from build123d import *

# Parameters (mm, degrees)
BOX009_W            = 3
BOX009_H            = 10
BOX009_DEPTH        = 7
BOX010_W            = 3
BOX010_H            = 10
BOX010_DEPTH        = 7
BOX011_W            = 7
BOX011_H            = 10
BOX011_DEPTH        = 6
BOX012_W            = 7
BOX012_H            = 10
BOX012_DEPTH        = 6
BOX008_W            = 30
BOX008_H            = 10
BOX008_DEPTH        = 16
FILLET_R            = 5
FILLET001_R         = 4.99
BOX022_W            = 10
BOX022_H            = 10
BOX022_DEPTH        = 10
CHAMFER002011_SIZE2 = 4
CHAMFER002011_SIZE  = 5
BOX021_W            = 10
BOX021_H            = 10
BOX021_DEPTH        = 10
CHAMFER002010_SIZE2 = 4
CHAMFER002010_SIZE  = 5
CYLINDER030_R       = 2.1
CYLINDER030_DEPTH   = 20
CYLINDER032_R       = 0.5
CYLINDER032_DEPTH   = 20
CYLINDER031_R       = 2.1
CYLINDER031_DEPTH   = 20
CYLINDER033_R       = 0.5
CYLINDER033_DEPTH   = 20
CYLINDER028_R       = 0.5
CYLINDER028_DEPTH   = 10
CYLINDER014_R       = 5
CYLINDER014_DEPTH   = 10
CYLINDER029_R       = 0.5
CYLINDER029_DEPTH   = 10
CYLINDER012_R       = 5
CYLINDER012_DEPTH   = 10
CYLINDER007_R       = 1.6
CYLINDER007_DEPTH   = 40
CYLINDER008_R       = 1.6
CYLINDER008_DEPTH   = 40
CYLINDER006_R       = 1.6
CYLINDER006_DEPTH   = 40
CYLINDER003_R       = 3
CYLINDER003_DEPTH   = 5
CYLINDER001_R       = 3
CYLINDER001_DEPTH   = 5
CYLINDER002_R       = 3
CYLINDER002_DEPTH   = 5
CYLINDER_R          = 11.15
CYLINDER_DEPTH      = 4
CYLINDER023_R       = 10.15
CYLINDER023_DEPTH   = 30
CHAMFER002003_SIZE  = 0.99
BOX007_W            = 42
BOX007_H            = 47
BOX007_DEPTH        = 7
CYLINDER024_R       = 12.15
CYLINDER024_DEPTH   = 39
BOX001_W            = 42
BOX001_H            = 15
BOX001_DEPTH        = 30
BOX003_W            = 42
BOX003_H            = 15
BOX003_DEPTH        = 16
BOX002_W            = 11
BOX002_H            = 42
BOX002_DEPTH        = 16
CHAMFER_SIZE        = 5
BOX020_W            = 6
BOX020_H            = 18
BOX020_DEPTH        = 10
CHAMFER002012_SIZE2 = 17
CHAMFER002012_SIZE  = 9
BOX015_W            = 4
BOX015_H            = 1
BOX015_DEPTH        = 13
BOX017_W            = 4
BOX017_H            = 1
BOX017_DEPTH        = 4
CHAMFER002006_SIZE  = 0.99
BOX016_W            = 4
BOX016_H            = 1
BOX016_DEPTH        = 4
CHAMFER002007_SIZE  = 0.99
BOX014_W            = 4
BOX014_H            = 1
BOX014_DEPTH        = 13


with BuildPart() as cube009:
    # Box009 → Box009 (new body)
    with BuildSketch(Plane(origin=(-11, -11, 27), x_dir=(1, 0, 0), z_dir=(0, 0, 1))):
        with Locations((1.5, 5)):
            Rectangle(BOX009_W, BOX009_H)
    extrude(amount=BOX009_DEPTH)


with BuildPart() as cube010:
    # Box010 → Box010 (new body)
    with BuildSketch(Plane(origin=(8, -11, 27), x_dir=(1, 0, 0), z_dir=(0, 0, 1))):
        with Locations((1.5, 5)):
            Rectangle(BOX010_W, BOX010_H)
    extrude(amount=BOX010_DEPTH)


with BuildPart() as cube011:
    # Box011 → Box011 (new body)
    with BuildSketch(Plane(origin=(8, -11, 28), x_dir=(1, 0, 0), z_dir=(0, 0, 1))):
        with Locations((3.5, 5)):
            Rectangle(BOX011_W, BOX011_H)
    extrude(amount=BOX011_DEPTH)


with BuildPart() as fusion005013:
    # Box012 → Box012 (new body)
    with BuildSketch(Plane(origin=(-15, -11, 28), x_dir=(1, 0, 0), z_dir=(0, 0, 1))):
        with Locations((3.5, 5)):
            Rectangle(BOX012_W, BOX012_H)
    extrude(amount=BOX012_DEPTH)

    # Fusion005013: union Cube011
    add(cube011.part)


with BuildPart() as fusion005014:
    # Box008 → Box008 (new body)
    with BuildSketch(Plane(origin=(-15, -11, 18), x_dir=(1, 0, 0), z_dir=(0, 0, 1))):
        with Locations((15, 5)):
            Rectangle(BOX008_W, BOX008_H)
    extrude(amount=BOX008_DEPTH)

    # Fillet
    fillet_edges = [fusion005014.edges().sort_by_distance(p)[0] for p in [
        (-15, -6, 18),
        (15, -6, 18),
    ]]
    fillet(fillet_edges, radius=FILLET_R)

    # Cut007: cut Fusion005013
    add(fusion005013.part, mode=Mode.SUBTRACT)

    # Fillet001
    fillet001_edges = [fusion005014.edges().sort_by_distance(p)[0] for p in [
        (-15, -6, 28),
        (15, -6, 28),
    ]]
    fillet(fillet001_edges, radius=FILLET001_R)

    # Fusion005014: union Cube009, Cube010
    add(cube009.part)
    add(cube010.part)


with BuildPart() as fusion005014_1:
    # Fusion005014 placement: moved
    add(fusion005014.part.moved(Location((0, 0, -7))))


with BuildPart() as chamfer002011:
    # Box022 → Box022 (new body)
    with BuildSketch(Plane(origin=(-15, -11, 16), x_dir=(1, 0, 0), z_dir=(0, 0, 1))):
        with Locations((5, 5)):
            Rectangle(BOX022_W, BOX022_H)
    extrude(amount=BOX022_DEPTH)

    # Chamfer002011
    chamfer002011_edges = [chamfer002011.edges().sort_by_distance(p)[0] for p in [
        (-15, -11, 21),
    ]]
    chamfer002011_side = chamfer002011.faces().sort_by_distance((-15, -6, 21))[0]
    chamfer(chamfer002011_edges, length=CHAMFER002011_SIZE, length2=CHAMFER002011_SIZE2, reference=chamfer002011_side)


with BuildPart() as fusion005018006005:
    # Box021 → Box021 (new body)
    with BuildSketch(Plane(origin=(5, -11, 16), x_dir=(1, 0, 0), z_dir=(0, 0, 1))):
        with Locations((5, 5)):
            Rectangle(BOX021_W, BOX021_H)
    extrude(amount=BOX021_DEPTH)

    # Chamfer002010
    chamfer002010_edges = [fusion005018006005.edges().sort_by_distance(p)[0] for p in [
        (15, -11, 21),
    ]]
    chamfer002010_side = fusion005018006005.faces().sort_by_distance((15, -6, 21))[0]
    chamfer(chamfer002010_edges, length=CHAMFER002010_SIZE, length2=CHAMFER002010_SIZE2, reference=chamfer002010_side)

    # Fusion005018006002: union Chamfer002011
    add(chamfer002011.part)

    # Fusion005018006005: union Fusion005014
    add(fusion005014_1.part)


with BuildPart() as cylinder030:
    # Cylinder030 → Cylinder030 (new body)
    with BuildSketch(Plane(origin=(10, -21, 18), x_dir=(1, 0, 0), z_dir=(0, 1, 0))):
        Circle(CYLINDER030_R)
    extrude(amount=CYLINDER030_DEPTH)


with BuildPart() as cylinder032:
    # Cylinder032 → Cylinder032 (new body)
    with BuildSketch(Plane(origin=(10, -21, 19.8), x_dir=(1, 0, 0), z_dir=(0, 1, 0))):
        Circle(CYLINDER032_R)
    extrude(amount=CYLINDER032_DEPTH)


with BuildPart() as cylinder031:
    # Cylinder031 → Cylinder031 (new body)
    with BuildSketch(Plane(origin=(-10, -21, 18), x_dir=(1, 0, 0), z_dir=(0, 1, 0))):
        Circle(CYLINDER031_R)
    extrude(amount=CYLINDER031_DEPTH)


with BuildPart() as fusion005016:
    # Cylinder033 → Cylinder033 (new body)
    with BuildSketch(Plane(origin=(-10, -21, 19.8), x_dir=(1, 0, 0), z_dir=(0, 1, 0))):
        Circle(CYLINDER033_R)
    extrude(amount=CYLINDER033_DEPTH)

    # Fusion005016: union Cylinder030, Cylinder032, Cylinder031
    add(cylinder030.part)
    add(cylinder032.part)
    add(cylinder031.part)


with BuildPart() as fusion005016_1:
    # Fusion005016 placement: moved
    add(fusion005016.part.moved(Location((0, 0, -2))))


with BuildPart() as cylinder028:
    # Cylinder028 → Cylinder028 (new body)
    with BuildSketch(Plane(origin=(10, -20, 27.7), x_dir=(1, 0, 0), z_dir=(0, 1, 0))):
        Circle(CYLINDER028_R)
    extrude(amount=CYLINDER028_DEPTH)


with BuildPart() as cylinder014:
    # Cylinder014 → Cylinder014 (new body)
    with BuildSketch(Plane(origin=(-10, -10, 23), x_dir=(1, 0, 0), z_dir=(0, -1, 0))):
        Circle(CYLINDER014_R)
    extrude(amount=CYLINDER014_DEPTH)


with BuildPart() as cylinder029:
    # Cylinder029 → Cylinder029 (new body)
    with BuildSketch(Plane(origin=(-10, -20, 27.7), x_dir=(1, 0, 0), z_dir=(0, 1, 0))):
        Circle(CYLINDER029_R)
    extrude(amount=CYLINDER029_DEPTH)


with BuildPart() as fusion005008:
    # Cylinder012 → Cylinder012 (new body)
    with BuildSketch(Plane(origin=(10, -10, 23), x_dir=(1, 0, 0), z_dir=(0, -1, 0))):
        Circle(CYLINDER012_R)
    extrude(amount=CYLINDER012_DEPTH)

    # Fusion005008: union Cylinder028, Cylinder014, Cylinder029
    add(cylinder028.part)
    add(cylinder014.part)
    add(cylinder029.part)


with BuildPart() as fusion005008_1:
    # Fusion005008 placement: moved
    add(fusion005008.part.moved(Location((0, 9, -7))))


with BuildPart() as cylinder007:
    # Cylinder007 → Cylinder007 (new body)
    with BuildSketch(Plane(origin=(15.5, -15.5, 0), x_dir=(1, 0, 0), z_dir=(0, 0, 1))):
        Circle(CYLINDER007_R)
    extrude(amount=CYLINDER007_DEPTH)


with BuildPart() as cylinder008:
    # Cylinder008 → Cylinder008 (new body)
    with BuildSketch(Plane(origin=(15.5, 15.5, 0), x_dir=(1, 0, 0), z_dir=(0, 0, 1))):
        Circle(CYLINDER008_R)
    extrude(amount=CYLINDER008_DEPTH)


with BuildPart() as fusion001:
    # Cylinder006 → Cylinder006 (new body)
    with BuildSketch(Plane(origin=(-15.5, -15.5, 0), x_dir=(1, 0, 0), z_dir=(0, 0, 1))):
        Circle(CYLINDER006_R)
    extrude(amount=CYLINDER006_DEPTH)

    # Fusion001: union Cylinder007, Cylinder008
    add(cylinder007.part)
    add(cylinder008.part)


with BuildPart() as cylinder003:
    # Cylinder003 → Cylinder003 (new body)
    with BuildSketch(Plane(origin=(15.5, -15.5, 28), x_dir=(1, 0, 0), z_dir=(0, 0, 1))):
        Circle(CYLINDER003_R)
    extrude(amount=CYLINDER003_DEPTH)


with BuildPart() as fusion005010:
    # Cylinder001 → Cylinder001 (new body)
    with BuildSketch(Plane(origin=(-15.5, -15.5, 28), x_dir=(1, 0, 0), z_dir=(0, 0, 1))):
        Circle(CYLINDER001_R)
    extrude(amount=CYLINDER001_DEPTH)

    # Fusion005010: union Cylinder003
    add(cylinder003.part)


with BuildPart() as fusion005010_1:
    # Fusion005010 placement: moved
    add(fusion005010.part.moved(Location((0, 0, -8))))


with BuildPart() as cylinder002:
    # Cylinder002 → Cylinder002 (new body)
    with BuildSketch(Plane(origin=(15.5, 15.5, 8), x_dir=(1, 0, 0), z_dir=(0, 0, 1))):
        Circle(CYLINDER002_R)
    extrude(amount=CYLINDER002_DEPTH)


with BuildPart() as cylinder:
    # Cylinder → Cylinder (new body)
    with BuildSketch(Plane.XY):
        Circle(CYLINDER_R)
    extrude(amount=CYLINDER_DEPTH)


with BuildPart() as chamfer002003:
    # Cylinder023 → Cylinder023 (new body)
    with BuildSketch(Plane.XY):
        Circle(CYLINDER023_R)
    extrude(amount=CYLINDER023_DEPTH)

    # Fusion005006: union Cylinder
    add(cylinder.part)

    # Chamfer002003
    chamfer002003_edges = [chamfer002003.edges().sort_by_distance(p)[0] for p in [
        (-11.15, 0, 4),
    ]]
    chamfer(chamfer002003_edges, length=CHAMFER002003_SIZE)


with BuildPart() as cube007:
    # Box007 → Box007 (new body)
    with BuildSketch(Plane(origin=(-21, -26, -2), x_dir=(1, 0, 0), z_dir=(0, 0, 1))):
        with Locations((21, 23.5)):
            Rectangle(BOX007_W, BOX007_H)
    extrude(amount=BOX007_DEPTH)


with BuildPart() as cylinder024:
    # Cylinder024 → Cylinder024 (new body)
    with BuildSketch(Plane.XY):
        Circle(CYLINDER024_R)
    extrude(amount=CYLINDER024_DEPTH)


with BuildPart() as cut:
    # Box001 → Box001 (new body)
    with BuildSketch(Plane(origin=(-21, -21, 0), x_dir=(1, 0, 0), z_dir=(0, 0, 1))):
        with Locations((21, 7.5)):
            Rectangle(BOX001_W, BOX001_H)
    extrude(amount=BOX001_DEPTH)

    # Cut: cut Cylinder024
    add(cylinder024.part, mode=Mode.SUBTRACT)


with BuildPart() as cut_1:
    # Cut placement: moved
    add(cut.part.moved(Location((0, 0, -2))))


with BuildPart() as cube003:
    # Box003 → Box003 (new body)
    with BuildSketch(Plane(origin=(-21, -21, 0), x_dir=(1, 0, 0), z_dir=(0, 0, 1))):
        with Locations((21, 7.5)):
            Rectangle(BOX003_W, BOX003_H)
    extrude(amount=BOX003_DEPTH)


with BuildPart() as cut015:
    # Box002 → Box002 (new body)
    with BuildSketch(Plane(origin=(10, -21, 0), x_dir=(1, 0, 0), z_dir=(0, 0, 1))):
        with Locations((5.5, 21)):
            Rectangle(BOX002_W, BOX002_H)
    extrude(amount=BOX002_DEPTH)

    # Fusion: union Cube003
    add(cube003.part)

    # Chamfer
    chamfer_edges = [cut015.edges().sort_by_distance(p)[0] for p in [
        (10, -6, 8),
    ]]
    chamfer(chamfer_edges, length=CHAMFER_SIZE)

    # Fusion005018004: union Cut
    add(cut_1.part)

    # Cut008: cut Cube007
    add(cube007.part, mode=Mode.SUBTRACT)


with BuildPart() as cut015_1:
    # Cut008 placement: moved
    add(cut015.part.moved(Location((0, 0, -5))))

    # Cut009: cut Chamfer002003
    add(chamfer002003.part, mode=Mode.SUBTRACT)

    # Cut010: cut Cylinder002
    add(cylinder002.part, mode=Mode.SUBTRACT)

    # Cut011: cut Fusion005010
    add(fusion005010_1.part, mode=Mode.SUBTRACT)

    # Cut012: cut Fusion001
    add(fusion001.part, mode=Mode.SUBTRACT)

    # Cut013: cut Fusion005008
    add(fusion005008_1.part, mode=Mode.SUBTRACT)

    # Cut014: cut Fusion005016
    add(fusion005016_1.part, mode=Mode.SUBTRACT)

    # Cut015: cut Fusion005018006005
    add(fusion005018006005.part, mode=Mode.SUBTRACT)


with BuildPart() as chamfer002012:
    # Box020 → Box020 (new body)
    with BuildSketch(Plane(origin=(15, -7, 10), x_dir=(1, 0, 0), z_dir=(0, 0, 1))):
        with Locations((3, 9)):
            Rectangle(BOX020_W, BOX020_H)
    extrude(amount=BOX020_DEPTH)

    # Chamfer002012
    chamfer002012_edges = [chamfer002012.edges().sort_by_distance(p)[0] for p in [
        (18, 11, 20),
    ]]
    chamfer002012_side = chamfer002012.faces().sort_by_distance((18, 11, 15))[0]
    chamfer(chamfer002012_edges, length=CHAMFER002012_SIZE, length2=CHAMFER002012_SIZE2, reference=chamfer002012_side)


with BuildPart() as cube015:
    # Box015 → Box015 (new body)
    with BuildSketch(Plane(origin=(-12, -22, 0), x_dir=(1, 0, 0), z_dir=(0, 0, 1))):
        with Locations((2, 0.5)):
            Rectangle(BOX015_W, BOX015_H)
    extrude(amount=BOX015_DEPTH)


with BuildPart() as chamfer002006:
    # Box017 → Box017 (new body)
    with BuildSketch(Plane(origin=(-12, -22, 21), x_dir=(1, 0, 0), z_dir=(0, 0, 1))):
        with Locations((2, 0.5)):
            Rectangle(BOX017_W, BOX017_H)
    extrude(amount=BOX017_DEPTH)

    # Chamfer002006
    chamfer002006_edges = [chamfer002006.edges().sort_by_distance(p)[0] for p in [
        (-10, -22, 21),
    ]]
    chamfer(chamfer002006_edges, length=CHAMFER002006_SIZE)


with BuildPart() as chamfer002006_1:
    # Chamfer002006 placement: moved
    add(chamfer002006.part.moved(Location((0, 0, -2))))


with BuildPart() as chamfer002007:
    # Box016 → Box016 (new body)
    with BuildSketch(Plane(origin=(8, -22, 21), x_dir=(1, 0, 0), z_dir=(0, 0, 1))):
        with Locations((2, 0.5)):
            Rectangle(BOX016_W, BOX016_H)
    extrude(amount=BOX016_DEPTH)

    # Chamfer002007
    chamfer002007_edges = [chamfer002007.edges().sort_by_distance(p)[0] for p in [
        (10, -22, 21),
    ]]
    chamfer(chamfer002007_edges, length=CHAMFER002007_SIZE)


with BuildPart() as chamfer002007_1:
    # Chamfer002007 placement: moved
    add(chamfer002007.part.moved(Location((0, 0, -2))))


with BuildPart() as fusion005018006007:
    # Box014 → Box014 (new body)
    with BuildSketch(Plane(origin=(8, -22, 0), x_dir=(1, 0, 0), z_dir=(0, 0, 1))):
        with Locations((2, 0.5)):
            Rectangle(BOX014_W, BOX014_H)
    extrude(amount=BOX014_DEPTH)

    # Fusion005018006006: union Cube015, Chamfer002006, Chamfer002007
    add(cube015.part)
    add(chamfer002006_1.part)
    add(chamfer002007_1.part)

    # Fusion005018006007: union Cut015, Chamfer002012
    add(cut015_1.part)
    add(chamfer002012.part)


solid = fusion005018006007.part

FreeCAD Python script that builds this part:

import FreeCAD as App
import Part
import Sketcher

V = App.Vector
Q = App.Units.Quantity


def edges_at(feature, points):
    """Names of the edges that pass closest to the given points."""
    edges = feature.Shape.Edges
    near = lambda p: min(range(len(edges)), key=lambda i: edges[i].distToShape(Part.Vertex(*p))[0])
    return sorted({f"Edge{near(p) + 1}" for p in points})


def add_polygon(sketch, points):
    """Adds a closed chain of lines whose ends are joined by coincident constraints."""
    first, n = sketch.GeometryCount, len(points)
    for a, b in zip(points, points[1:] + points[:1]):
        sketch.addGeometry(Part.LineSegment(App.Vector(*a, 0), App.Vector(*b, 0)), False)
    for i in range(n):
        sketch.addConstraint(Sketcher.Constraint("Coincident", first + i, 2, first + (i + 1) % n, 1))

doc = App.newDocument("Part")
body = doc.addObject("PartDesign::Body", "Body")

# Sketch on XY plane
sketch1 = doc.addObject("Sketcher::SketchObject", "Sketch")
body.addObject(sketch1)
sketch1.AttachmentSupport = (doc.XY_Plane, [""])
sketch1.MapMode = "FlatFace"
sketch1.AttachmentOffset = App.Placement(V(0, 0, 27), App.Rotation())
add_polygon(sketch1, [(-11, -1), (-11, -11), (-8, -11), (-8, -1)])  # lines 0-3
sketch1.addConstraint(Sketcher.Constraint("Vertical", 0))
sketch1.addConstraint(Sketcher.Constraint("Horizontal", 1))
sketch1.addConstraint(Sketcher.Constraint("Vertical", 2))
sketch1.addConstraint(Sketcher.Constraint("Horizontal", 3))
sketch1.addConstraint(Sketcher.Constraint("DistanceX", 1, 1, 1, 2, Q("3 mm")))
sketch1.addConstraint(Sketcher.Constraint("DistanceY", 0, 2, 0, 1, Q("10 mm")))
sketch1.addConstraint(Sketcher.Constraint("DistanceX", 0, 2, -1, 1, Q("11 mm")))
sketch1.addConstraint(Sketcher.Constraint("DistanceY", 0, 2, -1, 1, Q("11 mm")))
pad1 = doc.addObject("PartDesign::Pad", "Pad")
body.addObject(pad1)
pad1.Profile = sketch1
pad1.Length = 7
body2 = doc.addObject("PartDesign::Body", "Body001")

# Sketch on XY plane
sketch2 = doc.addObject("Sketcher::SketchObject", "Sketch001")
body2.addObject(sketch2)
sketch2.AttachmentSupport = (doc.getObject("XY_Plane001"), [""])
sketch2.MapMode = "FlatFace"
sketch2.AttachmentOffset = App.Placement(V(0, 0, 27), App.Rotation())
add_polygon(sketch2, [(8, -1), (8, -11), (11, -11), (11, -1)])  # lines 0-3
sketch2.addConstraint(Sketcher.Constraint("Vertical", 0))
sketch2.addConstraint(Sketcher.Constraint("Horizontal", 1))
sketch2.addConstraint(Sketcher.Constraint("Vertical", 2))
sketch2.addConstraint(Sketcher.Constraint("Horizontal", 3))
sketch2.addConstraint(Sketcher.Constraint("DistanceX", 1, 1, 1, 2, Q("3 mm")))
sketch2.addConstraint(Sketcher.Constraint("DistanceY", 0, 2, 0, 1, Q("10 mm")))
sketch2.addConstraint(Sketcher.Constraint("DistanceX", -1, 1, 0, 2, Q("8 mm")))
sketch2.addConstraint(Sketcher.Constraint("DistanceY", 0, 2, -1, 1, Q("11 mm")))
pad2 = doc.addObject("PartDesign::Pad", "Pad001")
body2.addObject(pad2)
pad2.Profile = sketch2
pad2.Length = 7
body3 = doc.addObject("PartDesign::Body", "Body002")

# Sketch on XY plane
sketch3 = doc.addObject("Sketcher::SketchObject", "Sketch002")
body3.addObject(sketch3)
sketch3.AttachmentSupport = (doc.getObject("XY_Plane002"), [""])
sketch3.MapMode = "FlatFace"
sketch3.AttachmentOffset = App.Placement(V(0, 0, 28), App.Rotation())
add_polygon(sketch3, [(8, -1), (8, -11), (15, -11), (15, -1)])  # lines 0-3
sketch3.addConstraint(Sketcher.Constraint("Vertical", 0))
sketch3.addConstraint(Sketcher.Constraint("Horizontal", 1))
sketch3.addConstraint(Sketcher.Constraint("Vertical", 2))
sketch3.addConstraint(Sketcher.Constraint("Horizontal", 3))
sketch3.addConstraint(Sketcher.Constraint("DistanceX", 1, 1, 1, 2, Q("7 mm")))
sketch3.addConstraint(Sketcher.Constraint("DistanceY", 0, 2, 0, 1, Q("10 mm")))
sketch3.addConstraint(Sketcher.Constraint("DistanceX", -1, 1, 0, 2, Q("8 mm")))
sketch3.addConstraint(Sketcher.Constraint("DistanceY", 0, 2, -1, 1, Q("11 mm")))
pad3 = doc.addObject("PartDesign::Pad", "Pad002")
body3.addObject(pad3)
pad3.Profile = sketch3
pad3.Length = 6
body4 = doc.addObject("PartDesign::Body", "Body003")
body4.AllowCompound = True

# Sketch on XY plane
sketch4 = doc.addObject("Sketcher::SketchObject", "Sketch003")
body4.addObject(sketch4)
sketch4.AttachmentSupport = (doc.getObject("XY_Plane003"), [""])
sketch4.MapMode = "FlatFace"
sketch4.AttachmentOffset = App.Placement(V(0, 0, 28), App.Rotation())
add_polygon(sketch4, [(-15, -1), (-15, -11), (-8, -11), (-8, -1)])  # lines 0-3
sketch4.addConstraint(Sketcher.Constraint("Vertical", 0))
sketch4.addConstraint(Sketcher.Constraint("Horizontal", 1))
sketch4.addConstraint(Sketcher.Constraint("Vertical", 2))
sketch4.addConstraint(Sketcher.Constraint("Horizontal", 3))
sketch4.addConstraint(Sketcher.Constraint("DistanceX", 1, 1, 1, 2, Q("7 mm")))
sketch4.addConstraint(Sketcher.Constraint("DistanceY", 0, 2, 0, 1, Q("10 mm")))
sketch4.addConstraint(Sketcher.Constraint("DistanceX", 0, 2, -1, 1, Q("15 mm")))
sketch4.addConstraint(Sketcher.Constraint("DistanceY", 0, 2, -1, 1, Q("11 mm")))
pad4 = doc.addObject("PartDesign::Pad", "Pad003")
body4.addObject(pad4)
pad4.Profile = sketch4
pad4.Length = 6
doc.recompute()

boolean = doc.addObject("PartDesign::Boolean", "Boolean")
body4.addObject(boolean)
boolean.Type = "Fuse"
boolean.addObjects([body3])
body5 = doc.addObject("PartDesign::Body", "Body004")

# Sketch on XY plane
sketch5 = doc.addObject("Sketcher::SketchObject", "Sketch004")
body5.addObject(sketch5)
sketch5.AttachmentSupport = (doc.getObject("XY_Plane004"), [""])
sketch5.MapMode = "FlatFace"
sketch5.AttachmentOffset = App.Placement(V(0, 0, 18), App.Rotation())
add_polygon(sketch5, [(-15, -1), (-15, -11), (15, -11), (15, -1)])  # lines 0-3
sketch5.addConstraint(Sketcher.Constraint("Vertical", 0))
sketch5.addConstraint(Sketcher.Constraint("Horizontal", 1))
sketch5.addConstraint(Sketcher.Constraint("Vertical", 2))
sketch5.addConstraint(Sketcher.Constraint("Horizontal", 3))
sketch5.addConstraint(Sketcher.Constraint("DistanceX", 1, 1, 1, 2, Q("30 mm")))
sketch5.addConstraint(Sketcher.Constraint("DistanceY", 0, 2, 0, 1, Q("10 mm")))
sketch5.addConstraint(Sketcher.Constraint("DistanceX", 0, 2, -1, 1, Q("15 mm")))
sketch5.addConstraint(Sketcher.Constraint("DistanceY", 0, 2, -1, 1, Q("11 mm")))
pad5 = doc.addObject("PartDesign::Pad", "Pad004")
body5.addObject(pad5)
pad5.Profile = sketch5
pad5.Length = 16
doc.recompute()

fillet = doc.addObject("PartDesign::Fillet", "Fillet")
body5.addObject(fillet)
fillet.Base = (pad5, edges_at(pad5, [(-15, -6, 18), (15, -6, 18)]))
fillet.Radius = 5
doc.recompute()

boolean2 = doc.addObject("PartDesign::Boolean", "Boolean001")
body5.addObject(boolean2)
boolean2.Type = "Cut"
boolean2.addObjects([body4])
doc.recompute()

fillet2 = doc.addObject("PartDesign::Fillet", "Fillet001")
body5.addObject(fillet2)
fillet2.Base = (boolean2, edges_at(boolean2, [(-15, -6, 28), (15, -6, 28)]))
fillet2.Radius = 4.99
doc.recompute()

boolean3 = doc.addObject("PartDesign::Boolean", "Boolean002")
body5.addObject(boolean3)
boolean3.Type = "Fuse"
boolean3.addObjects([body])
doc.recompute()

boolean4 = doc.addObject("PartDesign::Boolean", "Boolean003")
body5.addObject(boolean4)
boolean4.Type = "Fuse"
boolean4.addObjects([body2])
body6 = doc.addObject("PartDesign::Body", "Body005")
doc.recompute()

body5.Placement = App.Placement(V(0, 0, -7), App.Rotation(V(0, 0, 1), 0))
boolean5 = doc.addObject("PartDesign::Boolean", "Boolean004")
body6.addObject(boolean5)
boolean5.Type = "Fuse"
boolean5.addObjects([body5])
body7 = doc.addObject("PartDesign::Body", "Body006")

# Sketch on XY plane
sketch6 = doc.addObject("Sketcher::SketchObject", "Sketch005")
body7.addObject(sketch6)
sketch6.AttachmentSupport = (doc.getObject("XY_Plane006"), [""])
sketch6.MapMode = "FlatFace"
sketch6.AttachmentOffset = App.Placement(V(0, 0, 16), App.Rotation())
add_polygon(sketch6, [(-15, -1), (-15, -11), (-5, -11), (-5, -1)])  # lines 0-3
sketch6.addConstraint(Sketcher.Constraint("Vertical", 0))
sketch6.addConstraint(Sketcher.Constraint("Horizontal", 1))
sketch6.addConstraint(Sketcher.Constraint("Vertical", 2))
sketch6.addConstraint(Sketcher.Constraint("Horizontal", 3))
sketch6.addConstraint(Sketcher.Constraint("Equal", 3, 0))
sketch6.addConstraint(Sketcher.Constraint("DistanceX", 1, 1, 1, 2, Q("10 mm")))
sketch6.addConstraint(Sketcher.Constraint("DistanceX", 0, 2, -1, 1, Q("15 mm")))
sketch6.addConstraint(Sketcher.Constraint("DistanceY", 0, 2, -1, 1, Q("11 mm")))
pad6 = doc.addObject("PartDesign::Pad", "Pad005")
body7.addObject(pad6)
pad6.Profile = sketch6
pad6.Length = 10
doc.recompute()

chamfer = doc.addObject("PartDesign::Chamfer", "Chamfer")
body7.addObject(chamfer)
chamfer.Base = (pad6, edges_at(pad6, [(-15, -11, 21)]))
chamfer.ChamferType = "Two distances"
chamfer.Size = 5
chamfer.Size2 = 4
body8 = doc.addObject("PartDesign::Body", "Body007")
body8.AllowCompound = True

# Sketch on XY plane
sketch7 = doc.addObject("Sketcher::SketchObject", "Sketch006")
body8.addObject(sketch7)
sketch7.AttachmentSupport = (doc.getObject("XY_Plane007"), [""])
sketch7.MapMode = "FlatFace"
sketch7.AttachmentOffset = App.Placement(V(0, 0, 16), App.Rotation())
add_polygon(sketch7, [(5, -1), (5, -11), (15, -11), (15, -1)])  # lines 0-3
sketch7.addConstraint(Sketcher.Constraint("Vertical", 0))
sketch7.addConstraint(Sketcher.Constraint("Horizontal", 1))
sketch7.addConstraint(Sketcher.Constraint("Vertical", 2))
sketch7.addConstraint(Sketcher.Constraint("Horizontal", 3))
sketch7.addConstraint(Sketcher.Constraint("Equal", 3, 0))
sketch7.addConstraint(Sketcher.Constraint("DistanceX", 1, 1, 1, 2, Q("10 mm")))
sketch7.addConstraint(Sketcher.Constraint("DistanceX", -1, 1, 0, 2, Q("5 mm")))
sketch7.addConstraint(Sketcher.Constraint("DistanceY", 0, 2, -1, 1, Q("11 mm")))
pad7 = doc.addObject("PartDesign::Pad", "Pad006")
body8.addObject(pad7)
pad7.Profile = sketch7
pad7.Length = 10
doc.recompute()

chamfer2 = doc.addObject("PartDesign::Chamfer", "Chamfer001")
body8.addObject(chamfer2)
chamfer2.Base = (pad7, edges_at(pad7, [(15, -11, 21)]))
chamfer2.ChamferType = "Two distances"
chamfer2.Size = 5
chamfer2.Size2 = 4
chamfer2.FlipDirection = True
doc.recompute()

boolean6 = doc.addObject("PartDesign::Boolean", "Boolean005")
body8.addObject(boolean6)
boolean6.Type = "Fuse"
boolean6.addObjects([body7])
doc.recompute()

boolean7 = doc.addObject("PartDesign::Boolean", "Boolean006")
body8.addObject(boolean7)
boolean7.Type = "Fuse"
boolean7.addObjects([body6])
body9 = doc.addObject("PartDesign::Body", "Body008")

# Sketch on XZ plane
sketch8 = doc.addObject("Sketcher::SketchObject", "Sketch007")
body9.addObject(sketch8)
sketch8.AttachmentSupport = (doc.getObject("XZ_Plane008"), [""])
sketch8.MapMode = "FlatFace"
sketch8.AttachmentOffset = App.Placement(V(0, 0, 21), App.Rotation())
sketch8.addGeometry(Part.Circle(V(10, 18, 0), V(0, 0, 1), 2.1), False)
sketch8.addConstraint(Sketcher.Constraint("Diameter", 0, Q("4.2 mm")))
sketch8.addConstraint(Sketcher.Constraint("DistanceX", -1, 1, 0, 3, Q("10 mm")))
sketch8.addConstraint(Sketcher.Constraint("DistanceY", -1, 1, 0, 3, Q("18 mm")))
pad8 = doc.addObject("PartDesign::Pad", "Pad007")
body9.addObject(pad8)
pad8.Profile = sketch8
pad8.Length = 20
pad8.Reversed = True
body10 = doc.addObject("PartDesign::Body", "Body009")

# Sketch on XZ plane
sketch9 = doc.addObject("Sketcher::SketchObject", "Sketch008")
body10.addObject(sketch9)
sketch9.AttachmentSupport = (doc.getObject("XZ_Plane009"), [""])
sketch9.MapMode = "FlatFace"
sketch9.AttachmentOffset = App.Placement(V(0, 0, 21), App.Rotation())
sketch9.addGeometry(Part.Circle(V(10, 19.8, 0), V(0, 0, 1), 0.5), False)
sketch9.addConstraint(Sketcher.Constraint("Diameter", 0, Q("1 mm")))
sketch9.addConstraint(Sketcher.Constraint("DistanceX", -1, 1, 0, 3, Q("10 mm")))
sketch9.addConstraint(Sketcher.Constraint("DistanceY", -1, 1, 0, 3, Q("19.8 mm")))
pad9 = doc.addObject("PartDesign::Pad", "Pad008")
body10.addObject(pad9)
pad9.Profile = sketch9
pad9.Length = 20
pad9.Reversed = True
body11 = doc.addObject("PartDesign::Body", "Body010")

# Sketch on XZ plane
sketch10 = doc.addObject("Sketcher::SketchObject", "Sketch009")
body11.addObject(sketch10)
sketch10.AttachmentSupport = (doc.getObject("XZ_Plane010"), [""])
sketch10.MapMode = "FlatFace"
sketch10.AttachmentOffset = App.Placement(V(0, 0, 21), App.Rotation())
sketch10.addGeometry(Part.Circle(V(-10, 18, 0), V(0, 0, 1), 2.1), False)
sketch10.addConstraint(Sketcher.Constraint("Diameter", 0, Q("4.2 mm")))
sketch10.addConstraint(Sketcher.Constraint("DistanceX", 0, 3, -1, 1, Q("10 mm")))
sketch10.addConstraint(Sketcher.Constraint("DistanceY", -1, 1, 0, 3, Q("18 mm")))
pad10 = doc.addObject("PartDesign::Pad", "Pad009")
body11.addObject(pad10)
pad10.Profile = sketch10
pad10.Length = 20
pad10.Reversed = True
body12 = doc.addObject("PartDesign::Body", "Body011")
body12.AllowCompound = True

# Sketch on XZ plane
sketch11 = doc.addObject("Sketcher::SketchObject", "Sketch010")
body12.addObject(sketch11)
sketch11.AttachmentSupport = (doc.getObject("XZ_Plane011"), [""])
sketch11.MapMode = "FlatFace"
sketch11.AttachmentOffset = App.Placement(V(0, 0, 21), App.Rotation())
sketch11.addGeometry(Part.Circle(V(-10, 19.8, 0), V(0, 0, 1), 0.5), False)
sketch11.addConstraint(Sketcher.Constraint("Diameter", 0, Q("1 mm")))
sketch11.addConstraint(Sketcher.Constraint("DistanceX", 0, 3, -1, 1, Q("10 mm")))
sketch11.addConstraint(Sketcher.Constraint("DistanceY", -1, 1, 0, 3, Q("19.8 mm")))
pad11 = doc.addObject("PartDesign::Pad", "Pad010")
body12.addObject(pad11)
pad11.Profile = sketch11
pad11.Length = 20
pad11.Reversed = True
doc.recompute()

boolean8 = doc.addObject("PartDesign::Boolean", "Boolean007")
body12.addObject(boolean8)
boolean8.Type = "Fuse"
boolean8.addObjects([body9])
doc.recompute()

boolean9 = doc.addObject("PartDesign::Boolean", "Boolean008")
body12.addObject(boolean9)
boolean9.Type = "Fuse"
boolean9.addObjects([body10])
doc.recompute()

boolean10 = doc.addObject("PartDesign::Boolean", "Boolean009")
body12.addObject(boolean10)
boolean10.Type = "Fuse"
boolean10.addObjects([body11])
body13 = doc.addObject("PartDesign::Body", "Body012")
body13.AllowCompound = True
doc.recompute()

body12.Placement = App.Placement(V(0, 0, -2), App.Rotation(V(0, 0, 1), 0))
boolean11 = doc.addObject("PartDesign::Boolean", "Boolean010")
body13.addObject(boolean11)
boolean11.Type = "Fuse"
boolean11.addObjects([body12])
body14 = doc.addObject("PartDesign::Body", "Body013")

# Sketch on XZ plane
sketch12 = doc.addObject("Sketcher::SketchObject", "Sketch011")
body14.addObject(sketch12)
sketch12.AttachmentSupport = (doc.getObject("XZ_Plane013"), [""])
sketch12.MapMode = "FlatFace"
sketch12.AttachmentOffset = App.Placement(V(0, 0, 20), App.Rotation())
sketch12.addGeometry(Part.Circle(V(10, 27.7, 0), V(0, 0, 1), 0.5), False)
sketch12.addConstraint(Sketcher.Constraint("Diameter", 0, Q("1 mm")))
sketch12.addConstraint(Sketcher.Constraint("DistanceX", -1, 1, 0, 3, Q("10 mm")))
sketch12.addConstraint(Sketcher.Constraint("DistanceY", -1, 1, 0, 3, Q("27.7 mm")))
pad12 = doc.addObject("PartDesign::Pad", "Pad011")
body14.addObject(pad12)
pad12.Profile = sketch12
pad12.Length = 10
pad12.Reversed = True
body15 = doc.addObject("PartDesign::Body", "Body014")

# Sketch on XZ plane
sketch13 = doc.addObject("Sketcher::SketchObject", "Sketch012")
body15.addObject(sketch13)
sketch13.AttachmentSupport = (doc.getObject("XZ_Plane014"), [""])
sketch13.MapMode = "FlatFace"
sketch13.AttachmentOffset = App.Placement(V(0, 0, 10), App.Rotation())
sketch13.addGeometry(Part.Circle(V(-10, 23, 0), V(0, 0, 1), 5), False)
sketch13.addConstraint(Sketcher.Constraint("Diameter", 0, Q("10 mm")))
sketch13.addConstraint(Sketcher.Constraint("DistanceX", 0, 3, -1, 1, Q("10 mm")))
sketch13.addConstraint(Sketcher.Constraint("DistanceY", -1, 1, 0, 3, Q("23 mm")))
pad13 = doc.addObject("PartDesign::Pad", "Pad012")
body15.addObject(pad13)
pad13.Profile = sketch13
pad13.Length = 10
body16 = doc.addObject("PartDesign::Body", "Body015")

# Sketch on XZ plane
sketch14 = doc.addObject("Sketcher::SketchObject", "Sketch013")
body16.addObject(sketch14)
sketch14.AttachmentSupport = (doc.getObject("XZ_Plane015"), [""])
sketch14.MapMode = "FlatFace"
sketch14.AttachmentOffset = App.Placement(V(0, 0, 20), App.Rotation())
sketch14.addGeometry(Part.Circle(V(-10, 27.7, 0), V(0, 0, 1), 0.5), False)
sketch14.addConstraint(Sketcher.Constraint("Diameter", 0, Q("1 mm")))
sketch14.addConstraint(Sketcher.Constraint("DistanceX", 0, 3, -1, 1, Q("10 mm")))
sketch14.addConstraint(Sketcher.Constraint("DistanceY", -1, 1, 0, 3, Q("27.7 mm")))
pad14 = doc.addObject("PartDesign::Pad", "Pad013")
body16.addObject(pad14)
pad14.Profile = sketch14
pad14.Length = 10
pad14.Reversed = True
body17 = doc.addObject("PartDesign::Body", "Body016")
body17.AllowCompound = True

# Sketch on XZ plane
sketch15 = doc.addObject("Sketcher::SketchObject", "Sketch014")
body17.addObject(sketch15)
sketch15.AttachmentSupport = (doc.getObject("XZ_Plane016"), [""])
sketch15.MapMode = "FlatFace"
sketch15.AttachmentOffset = App.Placement(V(0, 0, 10), App.Rotation())
sketch15.addGeometry(Part.Circle(V(10, 23, 0), V(0, 0, 1), 5), False)
sketch15.addConstraint(Sketcher.Constraint("Diameter", 0, Q("10 mm")))
sketch15.addConstraint(Sketcher.Constraint("DistanceX", -1, 1, 0, 3, Q("10 mm")))
sketch15.addConstraint(Sketcher.Constraint("DistanceY", -1, 1, 0, 3, Q("23 mm")))
pad15 = doc.addObject("PartDesign::Pad", "Pad014")
body17.addObject(pad15)
pad15.Profile = sketch15
pad15.Length = 10
doc.recompute()

boolean12 = doc.addObject("PartDesign::Boolean", "Boolean011")
body17.addObject(boolean12)
boolean12.Type = "Fuse"
boolean12.addObjects([body14])
doc.recompute()

boolean13 = doc.addObject("PartDesign::Boolean", "Boolean012")
body17.addObject(boolean13)
boolean13.Type = "Fuse"
boolean13.addObjects([body15])
doc.recompute()

boolean14 = doc.addObject("PartDesign::Boolean", "Boolean013")
body17.addObject(boolean14)
boolean14.Type = "Fuse"
boolean14.addObjects([body16])
body18 = doc.addObject("PartDesign::Body", "Body017")
body18.AllowCompound = True
doc.recompute()

body17.Placement = App.Placement(V(0, 9, -7), App.Rotation(V(0, 0, 1), 0))
boolean15 = doc.addObject("PartDesign::Boolean", "Boolean014")
body18.addObject(boolean15)
boolean15.Type = "Fuse"
boolean15.addObjects([body17])
body19 = doc.addObject("PartDesign::Body", "Body018")

# Sketch on XY plane
sketch16 = doc.addObject("Sketcher::SketchObject", "Sketch015")
body19.addObject(sketch16)
sketch16.AttachmentSupport = (doc.getObject("XY_Plane018"), [""])
sketch16.MapMode = "FlatFace"
sketch16.addGeometry(Part.Circle(V(15.5, -15.5, 0), V(0, 0, 1), 1.6), False)
sketch16.addConstraint(Sketcher.Constraint("Diameter", 0, Q("3.2 mm")))
sketch16.addConstraint(Sketcher.Constraint("DistanceX", -1, 1, 0, 3, Q("15.5 mm")))
sketch16.addConstraint(Sketcher.Constraint("DistanceY", 0, 3, -1, 1, Q("15.5 mm")))
pad16 = doc.addObject("PartDesign::Pad", "Pad015")
body19.addObject(pad16)
pad16.Profile = sketch16
pad16.Length = 40
body20 = doc.addObject("PartDesign::Body", "Body019")

# Sketch on XY plane
sketch17 = doc.addObject("Sketcher::SketchObject", "Sketch016")
body20.addObject(sketch17)
sketch17.AttachmentSupport = (doc.getObject("XY_Plane019"), [""])
sketch17.MapMode = "FlatFace"
sketch17.addGeometry(Part.Circle(V(15.5, 15.5, 0), V(0, 0, 1), 1.6), False)
sketch17.addConstraint(Sketcher.Constraint("Diameter", 0, Q("3.2 mm")))
sketch17.addConstraint(Sketcher.Constraint("DistanceX", -1, 1, 0, 3, Q("15.5 mm")))
sketch17.addConstraint(Sketcher.Constraint("DistanceY", -1, 1, 0, 3, Q("15.5 mm")))
pad17 = doc.addObject("PartDesign::Pad", "Pad016")
body20.addObject(pad17)
pad17.Profile = sketch17
pad17.Length = 40
body21 = doc.addObject("PartDesign::Body", "Body020")
body21.AllowCompound = True

# Sketch on XY plane
sketch18 = doc.addObject("Sketcher::SketchObject", "Sketch017")
body21.addObject(sketch18)
sketch18.AttachmentSupport = (doc.getObject("XY_Plane020"), [""])
sketch18.MapMode = "FlatFace"
sketch18.addGeometry(Part.Circle(V(-15.5, -15.5, 0), V(0, 0, 1), 1.6), False)
sketch18.addConstraint(Sketcher.Constraint("Diameter", 0, Q("3.2 mm")))
sketch18.addConstraint(Sketcher.Constraint("DistanceX", 0, 3, -1, 1, Q("15.5 mm")))
sketch18.addConstraint(Sketcher.Constraint("DistanceY", 0, 3, -1, 1, Q("15.5 mm")))
pad18 = doc.addObject("PartDesign::Pad", "Pad017")
body21.addObject(pad18)
pad18.Profile = sketch18
pad18.Length = 40
doc.recompute()

boolean16 = doc.addObject("PartDesign::Boolean", "Boolean015")
body21.addObject(boolean16)
boolean16.Type = "Fuse"
boolean16.addObjects([body19])
doc.recompute()

boolean17 = doc.addObject("PartDesign::Boolean", "Boolean016")
body21.addObject(boolean17)
boolean17.Type = "Fuse"
boolean17.addObjects([body20])
body22 = doc.addObject("PartDesign::Body", "Body021")

# Sketch on XY plane
sketch19 = doc.addObject("Sketcher::SketchObject", "Sketch018")
body22.addObject(sketch19)
sketch19.AttachmentSupport = (doc.getObject("XY_Plane021"), [""])
sketch19.MapMode = "FlatFace"
sketch19.AttachmentOffset = App.Placement(V(0, 0, 28), App.Rotation())
sketch19.addGeometry(Part.Circle(V(15.5, -15.5, 0), V(0, 0, 1), 3), False)
sketch19.addConstraint(Sketcher.Constraint("Diameter", 0, Q("6 mm")))
sketch19.addConstraint(Sketcher.Constraint("DistanceX", -1, 1, 0, 3, Q("15.5 mm")))
sketch19.addConstraint(Sketcher.Constraint("DistanceY", 0, 3, -1, 1, Q("15.5 mm")))
pad19 = doc.addObject("PartDesign::Pad", "Pad018")
body22.addObject(pad19)
pad19.Profile = sketch19
pad19.Length = 5
body23 = doc.addObject("PartDesign::Body", "Body022")
body23.AllowCompound = True

# Sketch on XY plane
sketch20 = doc.addObject("Sketcher::SketchObject", "Sketch019")
body23.addObject(sketch20)
sketch20.AttachmentSupport = (doc.getObject("XY_Plane022"), [""])
sketch20.MapMode = "FlatFace"
sketch20.AttachmentOffset = App.Placement(V(0, 0, 28), App.Rotation())
sketch20.addGeometry(Part.Circle(V(-15.5, -15.5, 0), V(0, 0, 1), 3), False)
sketch20.addConstraint(Sketcher.Constraint("Diameter", 0, Q("6 mm")))
sketch20.addConstraint(Sketcher.Constraint("DistanceX", 0, 3, -1, 1, Q("15.5 mm")))
sketch20.addConstraint(Sketcher.Constraint("DistanceY", 0, 3, -1, 1, Q("15.5 mm")))
pad20 = doc.addObject("PartDesign::Pad", "Pad019")
body23.addObject(pad20)
pad20.Profile = sketch20
pad20.Length = 5
doc.recompute()

boolean18 = doc.addObject("PartDesign::Boolean", "Boolean017")
body23.addObject(boolean18)
boolean18.Type = "Fuse"
boolean18.addObjects([body22])
body24 = doc.addObject("PartDesign::Body", "Body023")
body24.AllowCompound = True
doc.recompute()

body23.Placement = App.Placement(V(0, 0, -8), App.Rotation(V(0, 0, 1), 0))
boolean19 = doc.addObject("PartDesign::Boolean", "Boolean018")
body24.addObject(boolean19)
boolean19.Type = "Fuse"
boolean19.addObjects([body23])
body25 = doc.addObject("PartDesign::Body", "Body024")

# Sketch on XY plane
sketch21 = doc.addObject("Sketcher::SketchObject", "Sketch020")
body25.addObject(sketch21)
sketch21.AttachmentSupport = (doc.getObject("XY_Plane024"), [""])
sketch21.MapMode = "FlatFace"
sketch21.AttachmentOffset = App.Placement(V(0, 0, 8), App.Rotation())
sketch21.addGeometry(Part.Circle(V(15.5, 15.5, 0), V(0, 0, 1), 3), False)
sketch21.addConstraint(Sketcher.Constraint("Diameter", 0, Q("6 mm")))
sketch21.addConstraint(Sketcher.Constraint("DistanceX", -1, 1, 0, 3, Q("15.5 mm")))
sketch21.addConstraint(Sketcher.Constraint("DistanceY", -1, 1, 0, 3, Q("15.5 mm")))
pad21 = doc.addObject("PartDesign::Pad", "Pad020")
body25.addObject(pad21)
pad21.Profile = sketch21
pad21.Length = 5
body26 = doc.addObject("PartDesign::Body", "Body025")

# Sketch on XY plane
sketch22 = doc.addObject("Sketcher::SketchObject", "Sketch021")
body26.addObject(sketch22)
sketch22.AttachmentSupport = (doc.getObject("XY_Plane025"), [""])
sketch22.MapMode = "FlatFace"
sketch22.addGeometry(Part.Circle(V(0, 0, 0), V(0, 0, 1), 11), False)
sketch22.addConstraint(Sketcher.Constraint("Coincident", 0, 3, -1, 1))
sketch22.addConstraint(Sketcher.Constraint("Diameter", 0, Q("22.3 mm")))
pad22 = doc.addObject("PartDesign::Pad", "Pad021")
body26.addObject(pad22)
pad22.Profile = sketch22
pad22.Length = 4
body27 = doc.addObject("PartDesign::Body", "Body026")

# Sketch on XY plane
sketch23 = doc.addObject("Sketcher::SketchObject", "Sketch022")
body27.addObject(sketch23)
sketch23.AttachmentSupport = (doc.getObject("XY_Plane026"), [""])
sketch23.MapMode = "FlatFace"
sketch23.addGeometry(Part.Circle(V(0, 0, 0), V(0, 0, 1), 10), False)
sketch23.addConstraint(Sketcher.Constraint("Coincident", 0, 3, -1, 1))
sketch23.addConstraint(Sketcher.Constraint("Diameter", 0, Q("20.3 mm")))
pad23 = doc.addObject("PartDesign::Pad", "Pad022")
body27.addObject(pad23)
pad23.Profile = sketch23
pad23.Length = 30
doc.recompute()

boolean20 = doc.addObject("PartDesign::Boolean", "Boolean019")
body27.addObject(boolean20)
boolean20.Type = "Fuse"
boolean20.addObjects([body26])
doc.recompute()

chamfer3 = doc.addObject("PartDesign::Chamfer", "Chamfer002")
body27.addObject(chamfer3)
chamfer3.Base = (boolean20, edges_at(boolean20, [(-11.15, 0, 4)]))
chamfer3.Size = 0.99
body28 = doc.addObject("PartDesign::Body", "Body027")

# Sketch on XY plane
sketch24 = doc.addObject("Sketcher::SketchObject", "Sketch023")
body28.addObject(sketch24)
sketch24.AttachmentSupport = (doc.getObject("XY_Plane027"), [""])
sketch24.MapMode = "FlatFace"
sketch24.AttachmentOffset = App.Placement(V(0, 0, -2), App.Rotation())
add_polygon(sketch24, [(-21, 21), (-21, -26), (21, -26), (21, 21)])  # lines 0-3
sketch24.addConstraint(Sketcher.Constraint("Vertical", 0))
sketch24.addConstraint(Sketcher.Constraint("Horizontal", 1))
sketch24.addConstraint(Sketcher.Constraint("Vertical", 2))
sketch24.addConstraint(Sketcher.Constraint("Horizontal", 3))
sketch24.addConstraint(Sketcher.Constraint("DistanceX", 1, 1, 1, 2, Q("42 mm")))
sketch24.addConstraint(Sketcher.Constraint("DistanceY", 0, 2, 0, 1, Q("47 mm")))
sketch24.addConstraint(Sketcher.Constraint("DistanceX", 0, 2, -1, 1, Q("21 mm")))
sketch24.addConstraint(Sketcher.Constraint("DistanceY", 0, 2, -1, 1, Q("26 mm")))
pad24 = doc.addObject("PartDesign::Pad", "Pad023")
body28.addObject(pad24)
pad24.Profile = sketch24
pad24.Length = 7
body29 = doc.addObject("PartDesign::Body", "Body028")

# Sketch on XY plane
sketch25 = doc.addObject("Sketcher::SketchObject", "Sketch024")
body29.addObject(sketch25)
sketch25.AttachmentSupport = (doc.getObject("XY_Plane028"), [""])
sketch25.MapMode = "FlatFace"
sketch25.addGeometry(Part.Circle(V(0, 0, 0), V(0, 0, 1), 12), False)
sketch25.addConstraint(Sketcher.Constraint("Coincident", 0, 3, -1, 1))
sketch25.addConstraint(Sketcher.Constraint("Diameter", 0, Q("24.3 mm")))
pad25 = doc.addObject("PartDesign::Pad", "Pad024")
body29.addObject(pad25)
pad25.Profile = sketch25
pad25.Length = 39
body30 = doc.addObject("PartDesign::Body", "Body029")

# Sketch on XY plane
sketch26 = doc.addObject("Sketcher::SketchObject", "Sketch025")
body30.addObject(sketch26)
sketch26.AttachmentSupport = (doc.getObject("XY_Plane029"), [""])
sketch26.MapMode = "FlatFace"
add_polygon(sketch26, [(-21, -6), (-21, -21), (21, -21), (21, -6)])  # lines 0-3
sketch26.addConstraint(Sketcher.Constraint("Vertical", 0))
sketch26.addConstraint(Sketcher.Constraint("Horizontal", 1))
sketch26.addConstraint(Sketcher.Constraint("Vertical", 2))
sketch26.addConstraint(Sketcher.Constraint("Horizontal", 3))
sketch26.addConstraint(Sketcher.Constraint("DistanceX", 1, 1, 1, 2, Q("42 mm")))
sketch26.addConstraint(Sketcher.Constraint("DistanceY", 0, 2, 0, 1, Q("15 mm")))
sketch26.addConstraint(Sketcher.Constraint("DistanceX", 0, 2, -1, 1, Q("21 mm")))
sketch26.addConstraint(Sketcher.Constraint("DistanceY", 0, 2, -1, 1, Q("21 mm")))
pad26 = doc.addObject("PartDesign::Pad", "Pad025")
body30.addObject(pad26)
pad26.Profile = sketch26
pad26.Length = 30
doc.recompute()

boolean21 = doc.addObject("PartDesign::Boolean", "Boolean020")
body30.addObject(boolean21)
boolean21.Type = "Cut"
boolean21.addObjects([body29])
body31 = doc.addObject("PartDesign::Body", "Body030")
doc.recompute()

body30.Placement = App.Placement(V(0, 0, -2), App.Rotation(V(0, 0, 1), 0))
boolean22 = doc.addObject("PartDesign::Boolean", "Boolean021")
body31.addObject(boolean22)
boolean22.Type = "Fuse"
boolean22.addObjects([body30])
body32 = doc.addObject("PartDesign::Body", "Body031")

# Sketch on XY plane
sketch27 = doc.addObject("Sketcher::SketchObject", "Sketch026")
body32.addObject(sketch27)
sketch27.AttachmentSupport = (doc.getObject("XY_Plane031"), [""])
sketch27.MapMode = "FlatFace"
add_polygon(sketch27, [(-21, -6), (-21, -21), (21, -21), (21, -6)])  # lines 0-3
sketch27.addConstraint(Sketcher.Constraint("Vertical", 0))
sketch27.addConstraint(Sketcher.Constraint("Horizontal", 1))
sketch27.addConstraint(Sketcher.Constraint("Vertical", 2))
sketch27.addConstraint(Sketcher.Constraint("Horizontal", 3))
sketch27.addConstraint(Sketcher.Constraint("DistanceX", 1, 1, 1, 2, Q("42 mm")))
sketch27.addConstraint(Sketcher.Constraint("DistanceY", 0, 2, 0, 1, Q("15 mm")))
sketch27.addConstraint(Sketcher.Constraint("DistanceX", 0, 2, -1, 1, Q("21 mm")))
sketch27.addConstraint(Sketcher.Constraint("DistanceY", 0, 2, -1, 1, Q("21 mm")))
pad27 = doc.addObject("PartDesign::Pad", "Pad026")
body32.addObject(pad27)
pad27.Profile = sketch27
pad27.Length = 16
body33 = doc.addObject("PartDesign::Body", "Body032")

# Sketch on XY plane
sketch28 = doc.addObject("Sketcher::SketchObject", "Sketch027")
body33.addObject(sketch28)
sketch28.AttachmentSupport = (doc.getObject("XY_Plane032"), [""])
sketch28.MapMode = "FlatFace"
add_polygon(sketch28, [(10, 21), (10, -21), (21, -21), (21, 21)])  # lines 0-3
sketch28.addConstraint(Sketcher.Constraint("Vertical", 0))
sketch28.addConstraint(Sketcher.Constraint("Horizontal", 1))
sketch28.addConstraint(Sketcher.Constraint("Vertical", 2))
sketch28.addConstraint(Sketcher.Constraint("Horizontal", 3))
sketch28.addConstraint(Sketcher.Constraint("DistanceX", 1, 1, 1, 2, Q("11 mm")))
sketch28.addConstraint(Sketcher.Constraint("DistanceY", 0, 2, 0, 1, Q("42 mm")))
sketch28.addConstraint(Sketcher.Constraint("DistanceX", -1, 1, 0, 2, Q("10 mm")))
sketch28.addConstraint(Sketcher.Constraint("DistanceY", 0, 2, -1, 1, Q("21 mm")))
pad28 = doc.addObject("PartDesign::Pad", "Pad027")
body33.addObject(pad28)
pad28.Profile = sketch28
pad28.Length = 16
doc.recompute()

boolean23 = doc.addObject("PartDesign::Boolean", "Boolean022")
body33.addObject(boolean23)
boolean23.Type = "Fuse"
boolean23.addObjects([body32])
doc.recompute()

chamfer4 = doc.addObject("PartDesign::Chamfer", "Chamfer003")
body33.addObject(chamfer4)
chamfer4.Base = (boolean23, edges_at(boolean23, [(10, -6, 8)]))
chamfer4.Size = 5
doc.recompute()

boolean24 = doc.addObject("PartDesign::Boolean", "Boolean023")
body33.addObject(boolean24)
boolean24.Type = "Fuse"
boolean24.addObjects([body31])
doc.recompute()

boolean25 = doc.addObject("PartDesign::Boolean", "Boolean024")
body33.addObject(boolean25)
boolean25.Type = "Cut"
boolean25.addObjects([body28])
body34 = doc.addObject("PartDesign::Body", "Body033")
doc.recompute()

body33.Placement = App.Placement(V(0, 0, -5), App.Rotation(V(0, 0, 1), 0))
boolean26 = doc.addObject("PartDesign::Boolean", "Boolean025")
body34.addObject(boolean26)
boolean26.Type = "Fuse"
boolean26.addObjects([body33])
doc.recompute()

boolean27 = doc.addObject("PartDesign::Boolean", "Boolean026")
body34.addObject(boolean27)
boolean27.Type = "Cut"
boolean27.addObjects([body27])
doc.recompute()

boolean28 = doc.addObject("PartDesign::Boolean", "Boolean027")
body34.addObject(boolean28)
boolean28.Type = "Cut"
boolean28.addObjects([body25])
doc.recompute()

boolean29 = doc.addObject("PartDesign::Boolean", "Boolean028")
body34.addObject(boolean29)
boolean29.Type = "Cut"
boolean29.addObjects([body24])
doc.recompute()

boolean30 = doc.addObject("PartDesign::Boolean", "Boolean029")
body34.addObject(boolean30)
boolean30.Type = "Cut"
boolean30.addObjects([body21])
doc.recompute()

boolean31 = doc.addObject("PartDesign::Boolean", "Boolean030")
body34.addObject(boolean31)
boolean31.Type = "Cut"
boolean31.addObjects([body18])
doc.recompute()

boolean32 = doc.addObject("PartDesign::Boolean", "Boolean031")
body34.addObject(boolean32)
boolean32.Type = "Cut"
boolean32.addObjects([body13])
doc.recompute()

boolean33 = doc.addObject("PartDesign::Boolean", "Boolean032")
body34.addObject(boolean33)
boolean33.Type = "Cut"
boolean33.addObjects([body8])
body35 = doc.addObject("PartDesign::Body", "Body034")

# Sketch on XY plane
sketch29 = doc.addObject("Sketcher::SketchObject", "Sketch028")
body35.addObject(sketch29)
sketch29.AttachmentSupport = (doc.getObject("XY_Plane034"), [""])
sketch29.MapMode = "FlatFace"
sketch29.AttachmentOffset = App.Placement(V(0, 0, 10), App.Rotation())
add_polygon(sketch29, [(15, 11), (15, -7), (21, -7), (21, 11)])  # lines 0-3
sketch29.addConstraint(Sketcher.Constraint("Vertical", 0))
sketch29.addConstraint(Sketcher.Constraint("Horizontal", 1))
sketch29.addConstraint(Sketcher.Constraint("Vertical", 2))
sketch29.addConstraint(Sketcher.Constraint("Horizontal", 3))
sketch29.addConstraint(Sketcher.Constraint("DistanceX", 1, 1, 1, 2, Q("6 mm")))
sketch29.addConstraint(Sketcher.Constraint("DistanceY", 0, 2, 0, 1, Q("18 mm")))
sketch29.addConstraint(Sketcher.Constraint("DistanceX", -1, 1, 0, 2, Q("15 mm")))
sketch29.addConstraint(Sketcher.Constraint("DistanceY", 0, 2, -1, 1, Q("7 mm")))
pad29 = doc.addObject("PartDesign::Pad", "Pad028")
body35.addObject(pad29)
pad29.Profile = sketch29
pad29.Length = 10
doc.recompute()

chamfer5 = doc.addObject("PartDesign::Chamfer", "Chamfer004")
body35.addObject(chamfer5)
chamfer5.Base = (pad29, edges_at(pad29, [(18, 11, 20)]))
chamfer5.ChamferType = "Two distances"
chamfer5.Size = 9
chamfer5.Size2 = 17
body36 = doc.addObject("PartDesign::Body", "Body035")

# Sketch on XY plane
sketch30 = doc.addObject("Sketcher::SketchObject", "Sketch029")
body36.addObject(sketch30)
sketch30.AttachmentSupport = (doc.getObject("XY_Plane035"), [""])
sketch30.MapMode = "FlatFace"
add_polygon(sketch30, [(-12, -21), (-12, -22), (-8, -22), (-8, -21)])  # lines 0-3
sketch30.addConstraint(Sketcher.Constraint("Vertical", 0))
sketch30.addConstraint(Sketcher.Constraint("Horizontal", 1))
sketch30.addConstraint(Sketcher.Constraint("Vertical", 2))
sketch30.addConstraint(Sketcher.Constraint("Horizontal", 3))
sketch30.addConstraint(Sketcher.Constraint("DistanceX", 1, 1, 1, 2, Q("4 mm")))
sketch30.addConstraint(Sketcher.Constraint("DistanceY", 0, 2, 0, 1, Q("1 mm")))
sketch30.addConstraint(Sketcher.Constraint("DistanceX", 0, 2, -1, 1, Q("12 mm")))
sketch30.addConstraint(Sketcher.Constraint("DistanceY", 0, 2, -1, 1, Q("22 mm")))
pad30 = doc.addObject("PartDesign::Pad", "Pad029")
body36.addObject(pad30)
pad30.Profile = sketch30
pad30.Length = 13
body37 = doc.addObject("PartDesign::Body", "Body036")

# Sketch on XY plane
sketch31 = doc.addObject("Sketcher::SketchObject", "Sketch030")
body37.addObject(sketch31)
sketch31.AttachmentSupport = (doc.getObject("XY_Plane036"), [""])
sketch31.MapMode = "FlatFace"
sketch31.AttachmentOffset = App.Placement(V(0, 0, 21), App.Rotation())
add_polygon(sketch31, [(-12, -21), (-12, -22), (-8, -22), (-8, -21)])  # lines 0-3
sketch31.addConstraint(Sketcher.Constraint("Vertical", 0))
sketch31.addConstraint(Sketcher.Constraint("Horizontal", 1))
sketch31.addConstraint(Sketcher.Constraint("Vertical", 2))
sketch31.addConstraint(Sketcher.Constraint("Horizontal", 3))
sketch31.addConstraint(Sketcher.Constraint("DistanceX", 1, 1, 1, 2, Q("4 mm")))
sketch31.addConstraint(Sketcher.Constraint("DistanceY", 0, 2, 0, 1, Q("1 mm")))
sketch31.addConstraint(Sketcher.Constraint("DistanceX", 0, 2, -1, 1, Q("12 mm")))
sketch31.addConstraint(Sketcher.Constraint("DistanceY", 0, 2, -1, 1, Q("22 mm")))
pad31 = doc.addObject("PartDesign::Pad", "Pad030")
body37.addObject(pad31)
pad31.Profile = sketch31
pad31.Length = 4
doc.recompute()

chamfer6 = doc.addObject("PartDesign::Chamfer", "Chamfer005")
body37.addObject(chamfer6)
chamfer6.Base = (pad31, edges_at(pad31, [(-10, -22, 21)]))
chamfer6.Size = 0.99
body38 = doc.addObject("PartDesign::Body", "Body037")
doc.recompute()

body37.Placement = App.Placement(V(0, 0, -2), App.Rotation(V(0, 0, 1), 0))
boolean34 = doc.addObject("PartDesign::Boolean", "Boolean033")
body38.addObject(boolean34)
boolean34.Type = "Fuse"
boolean34.addObjects([body37])
body39 = doc.addObject("PartDesign::Body", "Body038")

# Sketch on XY plane
sketch32 = doc.addObject("Sketcher::SketchObject", "Sketch031")
body39.addObject(sketch32)
sketch32.AttachmentSupport = (doc.getObject("XY_Plane038"), [""])
sketch32.MapMode = "FlatFace"
sketch32.AttachmentOffset = App.Placement(V(0, 0, 21), App.Rotation())
add_polygon(sketch32, [(8, -21), (8, -22), (12, -22), (12, -21)])  # lines 0-3
sketch32.addConstraint(Sketcher.Constraint("Vertical", 0))
sketch32.addConstraint(Sketcher.Constraint("Horizontal", 1))
sketch32.addConstraint(Sketcher.Constraint("Vertical", 2))
sketch32.addConstraint(Sketcher.Constraint("Horizontal", 3))
sketch32.addConstraint(Sketcher.Constraint("DistanceX", 1, 1, 1, 2, Q("4 mm")))
sketch32.addConstraint(Sketcher.Constraint("DistanceY", 0, 2, 0, 1, Q("1 mm")))
sketch32.addConstraint(Sketcher.Constraint("DistanceX", -1, 1, 0, 2, Q("8 mm")))
sketch32.addConstraint(Sketcher.Constraint("DistanceY", 0, 2, -1, 1, Q("22 mm")))
pad32 = doc.addObject("PartDesign::Pad", "Pad031")
body39.addObject(pad32)
pad32.Profile = sketch32
pad32.Length = 4
doc.recompute()

chamfer7 = doc.addObject("PartDesign::Chamfer", "Chamfer006")
body39.addObject(chamfer7)
chamfer7.Base = (pad32, edges_at(pad32, [(10, -22, 21)]))
chamfer7.Size = 0.99
body40 = doc.addObject("PartDesign::Body", "Body039")
doc.recompute()

body39.Placement = App.Placement(V(0, 0, -2), App.Rotation(V(0, 0, 1), 0))
boolean35 = doc.addObject("PartDesign::Boolean", "Boolean034")
body40.addObject(boolean35)
boolean35.Type = "Fuse"
boolean35.addObjects([body39])
body41 = doc.addObject("PartDesign::Body", "Body040")
body41.AllowCompound = True

# Sketch on XY plane
sketch33 = doc.addObject("Sketcher::SketchObject", "Sketch032")
body41.addObject(sketch33)
sketch33.AttachmentSupport = (doc.getObject("XY_Plane040"), [""])
sketch33.MapMode = "FlatFace"
add_polygon(sketch33, [(8, -21), (8, -22), (12, -22), (12, -21)])  # lines 0-3
sketch33.addConstraint(Sketcher.Constraint("Vertical", 0))
sketch33.addConstraint(Sketcher.Constraint("Horizontal", 1))
sketch33.addConstraint(Sketcher.Constraint("Vertical", 2))
sketch33.addConstraint(Sketcher.Constraint("Horizontal", 3))
sketch33.addConstraint(Sketcher.Constraint("DistanceX", 1, 1, 1, 2, Q("4 mm")))
sketch33.addConstraint(Sketcher.Constraint("DistanceY", 0, 2, 0, 1, Q("1 mm")))
sketch33.addConstraint(Sketcher.Constraint("DistanceX", -1, 1, 0, 2, Q("8 mm")))
sketch33.addConstraint(Sketcher.Constraint("DistanceY", 0, 2, -1, 1, Q("22 mm")))
pad33 = doc.addObject("PartDesign::Pad", "Pad032")
body41.addObject(pad33)
pad33.Profile = sketch33
pad33.Length = 13
doc.recompute()

boolean36 = doc.addObject("PartDesign::Boolean", "Boolean035")
body41.addObject(boolean36)
boolean36.Type = "Fuse"
boolean36.addObjects([body36])
doc.recompute()

boolean37 = doc.addObject("PartDesign::Boolean", "Boolean036")
body41.addObject(boolean37)
boolean37.Type = "Fuse"
boolean37.addObjects([body38])
doc.recompute()

boolean38 = doc.addObject("PartDesign::Boolean", "Boolean037")
body41.addObject(boolean38)
boolean38.Type = "Fuse"
boolean38.addObjects([body40])
doc.recompute()

boolean39 = doc.addObject("PartDesign::Boolean", "Boolean038")
body41.addObject(boolean39)
boolean39.Type = "Fuse"
boolean39.addObjects([body34])
doc.recompute()

boolean40 = doc.addObject("PartDesign::Boolean", "Boolean039")
body41.addObject(boolean40)
boolean40.Type = "Fuse"
boolean40.addObjects([body35])

doc.recompute()
